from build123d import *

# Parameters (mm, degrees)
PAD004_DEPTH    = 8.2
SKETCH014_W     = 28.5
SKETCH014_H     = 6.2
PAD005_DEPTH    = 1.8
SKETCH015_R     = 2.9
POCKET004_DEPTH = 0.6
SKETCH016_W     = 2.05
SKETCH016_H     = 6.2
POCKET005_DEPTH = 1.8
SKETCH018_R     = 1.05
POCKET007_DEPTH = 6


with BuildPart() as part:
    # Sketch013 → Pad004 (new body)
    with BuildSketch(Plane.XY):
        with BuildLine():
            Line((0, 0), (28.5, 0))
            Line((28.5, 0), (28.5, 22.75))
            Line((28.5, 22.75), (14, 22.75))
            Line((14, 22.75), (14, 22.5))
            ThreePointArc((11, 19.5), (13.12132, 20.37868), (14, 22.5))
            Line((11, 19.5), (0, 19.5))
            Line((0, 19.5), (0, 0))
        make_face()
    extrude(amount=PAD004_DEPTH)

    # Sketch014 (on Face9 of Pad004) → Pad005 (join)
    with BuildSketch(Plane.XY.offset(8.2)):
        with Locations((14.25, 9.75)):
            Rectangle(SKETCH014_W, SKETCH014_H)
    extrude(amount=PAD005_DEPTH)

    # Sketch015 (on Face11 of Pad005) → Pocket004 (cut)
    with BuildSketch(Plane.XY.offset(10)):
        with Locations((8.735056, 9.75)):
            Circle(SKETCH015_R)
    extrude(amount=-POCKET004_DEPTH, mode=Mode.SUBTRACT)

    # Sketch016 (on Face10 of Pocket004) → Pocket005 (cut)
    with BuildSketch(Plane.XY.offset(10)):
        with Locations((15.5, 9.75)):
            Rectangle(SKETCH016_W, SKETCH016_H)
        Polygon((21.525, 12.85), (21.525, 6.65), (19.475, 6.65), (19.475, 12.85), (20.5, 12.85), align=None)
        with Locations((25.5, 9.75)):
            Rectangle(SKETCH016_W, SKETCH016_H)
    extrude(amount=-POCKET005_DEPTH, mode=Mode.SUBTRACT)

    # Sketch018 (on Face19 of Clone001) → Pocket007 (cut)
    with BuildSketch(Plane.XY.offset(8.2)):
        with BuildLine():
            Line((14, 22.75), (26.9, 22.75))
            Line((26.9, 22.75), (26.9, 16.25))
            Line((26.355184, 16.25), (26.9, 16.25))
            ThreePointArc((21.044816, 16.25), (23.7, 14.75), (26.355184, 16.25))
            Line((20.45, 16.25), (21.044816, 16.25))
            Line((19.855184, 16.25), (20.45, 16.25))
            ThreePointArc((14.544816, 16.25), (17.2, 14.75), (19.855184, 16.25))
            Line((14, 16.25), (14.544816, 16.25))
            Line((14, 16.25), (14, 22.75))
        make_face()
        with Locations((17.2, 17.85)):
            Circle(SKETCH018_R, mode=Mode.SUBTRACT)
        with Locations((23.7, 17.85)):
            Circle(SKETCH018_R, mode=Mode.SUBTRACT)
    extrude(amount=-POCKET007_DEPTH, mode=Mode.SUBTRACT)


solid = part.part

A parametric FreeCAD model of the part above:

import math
import FreeCAD as App
import Part
import Sketcher
Q = App.Units.Quantity


def add_polygon(sketch, points):
    """Adds a closed chain of lines whose ends are joined by coincident constraints."""
    first, n = sketch.GeometryCount, len(points)
    for a, b in zip(points, points[1:] + points[:1]):
        sketch.addGeometry(Part.LineSegment(App.Vector(*a, 0), App.Vector(*b, 0)), False)
    for i in range(n):
        sketch.addConstraint(Sketcher.Constraint("Coincident", first + i, 2, first + (i + 1) % n, 1))

doc = App.newDocument("Part")
body = doc.addObject("PartDesign::Body", "Body")

# Sketch on XY plane
sketch1 = body.newObject("Sketcher::SketchObject", "Sketch")
sketch1.AttachmentSupport = (doc.getObject("XY_Plane"), [""])
sketch1.MapMode = "FlatFace"
sketch1.addGeometry([
    Part.LineSegment(App.Vector(0, 0, 0), App.Vector(28.5, 0, 0)),  # 0
    Part.LineSegment(App.Vector(28.5, 0, 0), App.Vector(28.5, 22.75, 0)),  # 1
    Part.LineSegment(App.Vector(28.5, 22.75, 0), App.Vector(14, 22.75, 0)),  # 2
    Part.LineSegment(App.Vector(14, 22.75, 0), App.Vector(14, 22.5, 0)),  # 3
    Part.ArcOfCircle(Part.Circle(App.Vector(11, 22.5, 0), App.Vector(0, 0, 1), 3), math.radians(-90), math.radians(0)),  # 4
    Part.LineSegment(App.Vector(11, 19.5, 0), App.Vector(0, 19.5, 0)),  # 5
    Part.LineSegment(App.Vector(0, 19.5, 0), App.Vector(0, 0, 0)),  # 6
], False)
sketch1.addConstraint([
    Sketcher.Constraint("Coincident", 0, 2, 1, 1),
    Sketcher.Constraint("Coincident", 1, 2, 2, 1),
    Sketcher.Constraint("Coincident", 2, 2, 3, 1),
    Sketcher.Constraint("Tangent", 3, 2, 4, 2),
    Sketcher.Constraint("Tangent", 4, 1, 5, 1),
    Sketcher.Constraint("Coincident", 5, 2, 6, 1),
    Sketcher.Constraint("Coincident", 6, 2, 0, 1),
    Sketcher.Constraint("Horizontal", 0),
    Sketcher.Constraint("Vertical", 1),
    Sketcher.Constraint("Horizontal", 2),
    Sketcher.Constraint("Vertical", 3),
    Sketcher.Constraint("Horizontal", 5),
    Sketcher.Constraint("Vertical", 6),
    Sketcher.Constraint("Coincident", 6, 2, -1, 1),
    Sketcher.Constraint("Radius", 4, Q("3.000001 mm")),
    Sketcher.Constraint("DistanceX", 5, 2, 5, 1, Q("11 mm")),
    Sketcher.Constraint("DistanceX", 0, 1, 0, 2, Q("28.5 mm")),
    Sketcher.Constraint("DistanceY", 6, 2, 6, 1, Q("19.5 mm")),
    Sketcher.Constraint("DistanceY", 1, 1, 1, 2, Q("22.75 mm")),
])
pad1 = body.newObject("PartDesign::Pad", "Pad")
pad1.Profile = sketch1
pad1.Length = 8.2

# Sketch on XY plane
sketch2 = body.newObject("Sketcher::SketchObject", "Sketch001")
sketch2.AttachmentSupport = (doc.getObject("XY_Plane"), [""])
sketch2.MapMode = "FlatFace"
sketch2.AttachmentOffset = App.Placement(App.Vector(0, 0, 8.2), App.Rotation())
add_polygon(sketch2, [(0, 13), (0, 7), (28, 7), (28, 13)])  # lines 0-3
sketch2.addConstraint([
    Sketcher.Constraint("Vertical", 0),
    Sketcher.Constraint("Horizontal", 1),
    Sketcher.Constraint("Vertical", 2),
    Sketcher.Constraint("Horizontal", 3),
    Sketcher.Constraint("PointOnObject", 0, 2, -2),
    Sketcher.Constraint("DistanceX", 1, 1, 1, 2, Q("28.5 mm")),
    Sketcher.Constraint("DistanceY", 0, 2, 0, 1, Q("6.2 mm")),
    Sketcher.Constraint("DistanceY", -1, 1, 0, 2, Q("6.65 mm")),
])
pad2 = body.newObject("PartDesign::Pad", "Pad001")
pad2.Profile = sketch2
pad2.Length = 1.8

# Sketch on XY plane
sketch3 = body.newObject("Sketcher::SketchObject", "Sketch002")
sketch3.AttachmentSupport = (doc.getObject("XY_Plane"), [""])
sketch3.MapMode = "FlatFace"
sketch3.AttachmentOffset = App.Placement(App.Vector(0, 0, 10), App.Rotation())
sketch3.addGeometry(Part.Circle(App.Vector(8.7, 9.8, 0), App.Vector(0, 0, 1), 2.9), False)
sketch3.addConstraint([
    Sketcher.Constraint("Diameter", 0, Q("5.8 mm")),
    Sketcher.Constraint("DistanceY", -1, 1, 0, 3, Q("9.75 mm")),
    Sketcher.Constraint("DistanceX", -1, 1, 0, 3, Q("8.735056 mm")),
])
pocket1 = body.newObject("PartDesign::Pocket", "Pocket")
pocket1.Profile = sketch3
pocket1.Length = 0.6

# Sketch on XY plane
sketch4 = body.newObject("Sketcher::SketchObject", "Sketch003")
sketch4.AttachmentSupport = (doc.getObject("XY_Plane"), [""])
sketch4.MapMode = "FlatFace"
sketch4.AttachmentOffset = App.Placement(App.Vector(0, 0, 10), App.Rotation())
add_polygon(sketch4, [(14.5, 12.8), (14.5, 6.7), (16.5, 6.7), (16.5, 12.8)])  # lines 0-3
add_polygon(sketch4, [(21.5, 6.7), (21.5, 12.8), (19.5, 12.8), (19.5, 6.7)])  # lines 4-7
add_polygon(sketch4, [(24.5, 12.8), (24.5, 6.7), (26.5, 6.7), (26.5, 12.8)])  # lines 8-11
sketch4.addConstraint([
    Sketcher.Constraint("Vertical", 0),
    Sketcher.Constraint("Horizontal", 1),
    Sketcher.Constraint("Vertical", 2),
    Sketcher.Constraint("Horizontal", 3),
    Sketcher.Constraint("Vertical", 4),
    Sketcher.Constraint("Horizontal", 5),
    Sketcher.Constraint("Vertical", 6),
    Sketcher.Constraint("Horizontal", 7),
    Sketcher.Constraint("Vertical", 8),
    Sketcher.Constraint("Horizontal", 9),
    Sketcher.Constraint("Vertical", 10),
    Sketcher.Constraint("Horizontal", 11),
    Sketcher.Constraint("Horizontal", 3, 2, 4, 2),
    Sketcher.Constraint("Horizontal", 1, 2, 6, 2),
    Sketcher.Constraint("Horizontal", 7, 2, 8, 2),
    Sketcher.Constraint("Horizontal", 5, 2, 10, 2),
    Sketcher.Constraint("Equal", 3, 5),
    Sketcher.Constraint("Equal", 7, 9),
    Sketcher.Constraint("DistanceY", 0, 2, 0, 1, Q("6.2 mm")),
    Sketcher.Constraint("DistanceX", 2, 2, 4, 2, Q("5 mm")),
    Sketcher.Constraint("DistanceX", 6, 2, 8, 2, Q("5 mm")),
    Sketcher.Constraint("DistanceX", 1, 1, 1, 2, Q("2.05 mm")),
    Sketcher.Constraint("DistanceY", -1, 1, 0, 2, Q("6.65 mm")),
    Sketcher.Constraint("DistanceX", -1, 1, 0, 2, Q("14.475 mm")),
])
pocket2 = body.newObject("PartDesign::Pocket", "Pocket001")
pocket2.Profile = sketch4
pocket2.Length = 1.8

# Sketch on XY plane
sketch5 = body.newObject("Sketcher::SketchObject", "Sketch004")
sketch5.AttachmentSupport = (doc.getObject("XY_Plane"), [""])
sketch5.MapMode = "FlatFace"
sketch5.AttachmentOffset = App.Placement(App.Vector(0, 0, 8.2), App.Rotation())
sketch5.addGeometry([
    Part.LineSegment(App.Vector(26.9, 22.8, 0), App.Vector(14, 22.8, 0)),  # 0
    Part.LineSegment(App.Vector(14, 22.8, 0), App.Vector(14, 16.2, 0)),  # 1
    Part.LineSegment(App.Vector(14, 16.2, 0), App.Vector(14.5, 16.2, 0)),  # 2
    Part.ArcOfCircle(Part.Circle(App.Vector(17.2, 17.9, 0), App.Vector(0, 0, 1), 3.1), math.radians(-149), math.radians(-31)),  # 3
    Part.LineSegment(App.Vector(19.9, 16.2, 0), App.Vector(21, 16.2, 0)),  # 4
    Part.ArcOfCircle(Part.Circle(App.Vector(23.7, 17.9, 0), App.Vector(0, 0, 1), 3.1), math.radians(-149), math.radians(-31)),  # 5
    Part.LineSegment(App.Vector(26.4, 16.2, 0), App.Vector(26.9, 16.2, 0)),  # 6
    Part.LineSegment(App.Vector(26.9, 16.2, 0), App.Vector(26.9, 22.8, 0)),  # 7
    Part.Circle(App.Vector(23.7, 17.9, 0), App.Vector(0, 0, 1), 1.1),  # 8
    Part.Circle(App.Vector(17.2, 17.9, 0), App.Vector(0, 0, 1), 1.1),  # 9
], False)
sketch5.addConstraint([
    Sketcher.Constraint("Coincident", 0, 2, 1, 1),
    Sketcher.Constraint("Coincident", 1, 2, 2, 1),
    Sketcher.Constraint("Coincident", 2, 2, 3, 1),
    Sketcher.Constraint("Coincident", 3, 2, 4, 1),
    Sketcher.Constraint("Coincident", 4, 2, 5, 1),
    Sketcher.Constraint("Coincident", 5, 2, 6, 1),
    Sketcher.Constraint("Coincident", 6, 2, 7, 1),
    Sketcher.Constraint("Coincident", 7, 2, 0, 1),
    Sketcher.Constraint("Horizontal", 0),
    Sketcher.Constraint("Vertical", 1),
    Sketcher.Constraint("Horizontal", 2),
    Sketcher.Constraint("Horizontal", 4),
    Sketcher.Constraint("Horizontal", 6),
    Sketcher.Constraint("Vertical", 7),
    Sketcher.Constraint("Coincident", 8, 3, 5, 3),
    Sketcher.Constraint("Coincident", 9, 3, 3, 3),
    Sketcher.Constraint("Equal", 3, 5),
    Sketcher.Constraint("Equal", 8, 9),
    Sketcher.Constraint("Horizontal", 3, 3, 5, 3),
    Sketcher.Constraint("Horizontal", 2, 2, 3, 2),
    Sketcher.Constraint("Horizontal", 4, 2, 5, 2),
    Sketcher.Constraint("Equal", 2, 6),
    Sketcher.Constraint("Diameter", 8, Q("2.1 mm")),
    Sketcher.Constraint("Radius", 3, Q("3.100001 mm")),
    Sketcher.Constraint("DistanceX", 0, 2, 0, 1, Q("12.9 mm")),
    Sketcher.Constraint("DistanceY", 1, 2, 1, 1, Q("6.5 mm")),
    Sketcher.Constraint("DistanceX", -1, 1, 0, 2, Q("14 mm")),
    Sketcher.Constraint("DistanceX", -1, 1, 3, 3, Q("17.2 mm")),
    Sketcher.Constraint("DistanceY", 3, 3, 0, 2, Q("4.899999 mm")),
    Sketcher.Constraint("DistanceY", -1, 1, 3, 3, Q("17.850001 mm")),
])
pocket3 = body.newObject("PartDesign::Pocket", "Pocket002")
pocket3.Profile = sketch5
pocket3.Length = 6

doc.recompute()
